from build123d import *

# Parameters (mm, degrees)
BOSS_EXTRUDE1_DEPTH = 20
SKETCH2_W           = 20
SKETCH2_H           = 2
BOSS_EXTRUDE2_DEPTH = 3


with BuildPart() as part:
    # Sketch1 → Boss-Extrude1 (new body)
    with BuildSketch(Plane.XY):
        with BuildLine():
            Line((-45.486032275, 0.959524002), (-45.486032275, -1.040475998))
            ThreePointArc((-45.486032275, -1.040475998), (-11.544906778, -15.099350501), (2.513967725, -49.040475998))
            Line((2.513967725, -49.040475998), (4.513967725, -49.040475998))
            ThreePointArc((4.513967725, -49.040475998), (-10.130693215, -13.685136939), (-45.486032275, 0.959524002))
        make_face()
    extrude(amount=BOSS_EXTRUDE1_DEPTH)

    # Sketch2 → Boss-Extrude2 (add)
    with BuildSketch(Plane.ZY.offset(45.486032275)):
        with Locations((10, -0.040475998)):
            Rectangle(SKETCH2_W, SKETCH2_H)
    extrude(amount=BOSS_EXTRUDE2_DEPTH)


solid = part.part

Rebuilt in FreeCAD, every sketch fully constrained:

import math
import FreeCAD as App
import Part
import Sketcher

doc = App.newDocument("Part")
body = doc.addObject("PartDesign::Body", "Body")

# Sketch on XY plane
sketch1 = body.newObject("Sketcher::SketchObject", "Sketch")
sketch1.AttachmentSupport = (doc.getObject("XY_Plane"), [""])
sketch1.MapMode = "FlatFace"
sketch1.addGeometry([
    Part.LineSegment(App.Vector(-45.5, 1, 0), App.Vector(-45.5, -1, 0)),
    Part.ArcOfCircle(Part.Circle(App.Vector(-45.5, -49, 0), App.Vector(0, 0, 1), 48), math.radians(0), math.radians(90)),
    Part.LineSegment(App.Vector(2.5, -49, 0), App.Vector(4.5, -49, 0)),
    Part.ArcOfCircle(Part.Circle(App.Vector(-45.5, -49, 0), App.Vector(0, 0, 1), 50), math.radians(0), math.radians(90)),
], False)
sketch1.addConstraint([
    Sketcher.Constraint("Coincident", 0, 2, 1, 2),
    Sketcher.Constraint("Coincident", 1, 1, 2, 1),
    Sketcher.Constraint("Coincident", 2, 2, 3, 1),
    Sketcher.Constraint("Coincident", 3, 2, 0, 1),
    Sketcher.Constraint("Vertical", 0),
    Sketcher.Constraint("Horizontal", 2),
    Sketcher.Constraint("Coincident", 3, 3, 1, 3),
    Sketcher.Constraint("Horizontal", 3, 3, 1, 1),
    Sketcher.Constraint("Vertical", 3, 3, 0, 2),
    Sketcher.Constraint("Radius", 1, 48.0),
    Sketcher.Constraint("Radius", 3, 50.0),
    Sketcher.Constraint("DistanceX", 1, 3, -1, 1, 45.486032),
    Sketcher.Constraint("DistanceY", 1, 3, -1, 1, 49.040476),
])
pad1 = body.newObject("PartDesign::Pad", "Pad")
pad1.Profile = sketch1
pad1.Length = 20

# Sketch on YZ plane
sketch2 = body.newObject("Sketcher::SketchObject", "Sketch001")
sketch2.AttachmentSupport = (doc.getObject("YZ_Plane"), [""])
sketch2.MapMode = "FlatFace"
sketch2.AttachmentOffset = App.Placement(App.Vector(0, 0, -45.486032), App.Rotation())
sketch2.addGeometry([
    Part.LineSegment(App.Vector(1, 0, 0), App.Vector(-1, 0, 0)),
    Part.LineSegment(App.Vector(-1, 0, 0), App.Vector(-1, 20, 0)),
    Part.LineSegment(App.Vector(-1, 20, 0), App.Vector(1, 20, 0)),
    Part.LineSegment(App.Vector(1, 20, 0), App.Vector(1, 0, 0)),
], False)
sketch2.addConstraint([
    Sketcher.Constraint("Coincident", 0, 2, 1, 1),
    Sketcher.Constraint("Coincident", 1, 2, 2, 1),
    Sketcher.Constraint("Coincident", 2, 2, 3, 1),
    Sketcher.Constraint("Coincident", 3, 2, 0, 1),
    Sketcher.Constraint("Horizontal", 0),
    Sketcher.Constraint("Vertical", 1),
    Sketcher.Constraint("Horizontal", 2),
    Sketcher.Constraint("Vertical", 3),
    Sketcher.Constraint("PointOnObject", 0, 2, -1),
    Sketcher.Constraint("DistanceX", 0, 2, 0, 1, 2.0),
    Sketcher.Constraint("DistanceY", 1, 1, 1, 2, 20.0),
    Sketcher.Constraint("DistanceX", 0, 2, -1, 1, 1.040476),
])
pad2 = body.newObject("PartDesign::Pad", "Pad001")
pad2.Profile = sketch2
pad2.Length = 3
pad2.Reversed = True

doc.recompute()
